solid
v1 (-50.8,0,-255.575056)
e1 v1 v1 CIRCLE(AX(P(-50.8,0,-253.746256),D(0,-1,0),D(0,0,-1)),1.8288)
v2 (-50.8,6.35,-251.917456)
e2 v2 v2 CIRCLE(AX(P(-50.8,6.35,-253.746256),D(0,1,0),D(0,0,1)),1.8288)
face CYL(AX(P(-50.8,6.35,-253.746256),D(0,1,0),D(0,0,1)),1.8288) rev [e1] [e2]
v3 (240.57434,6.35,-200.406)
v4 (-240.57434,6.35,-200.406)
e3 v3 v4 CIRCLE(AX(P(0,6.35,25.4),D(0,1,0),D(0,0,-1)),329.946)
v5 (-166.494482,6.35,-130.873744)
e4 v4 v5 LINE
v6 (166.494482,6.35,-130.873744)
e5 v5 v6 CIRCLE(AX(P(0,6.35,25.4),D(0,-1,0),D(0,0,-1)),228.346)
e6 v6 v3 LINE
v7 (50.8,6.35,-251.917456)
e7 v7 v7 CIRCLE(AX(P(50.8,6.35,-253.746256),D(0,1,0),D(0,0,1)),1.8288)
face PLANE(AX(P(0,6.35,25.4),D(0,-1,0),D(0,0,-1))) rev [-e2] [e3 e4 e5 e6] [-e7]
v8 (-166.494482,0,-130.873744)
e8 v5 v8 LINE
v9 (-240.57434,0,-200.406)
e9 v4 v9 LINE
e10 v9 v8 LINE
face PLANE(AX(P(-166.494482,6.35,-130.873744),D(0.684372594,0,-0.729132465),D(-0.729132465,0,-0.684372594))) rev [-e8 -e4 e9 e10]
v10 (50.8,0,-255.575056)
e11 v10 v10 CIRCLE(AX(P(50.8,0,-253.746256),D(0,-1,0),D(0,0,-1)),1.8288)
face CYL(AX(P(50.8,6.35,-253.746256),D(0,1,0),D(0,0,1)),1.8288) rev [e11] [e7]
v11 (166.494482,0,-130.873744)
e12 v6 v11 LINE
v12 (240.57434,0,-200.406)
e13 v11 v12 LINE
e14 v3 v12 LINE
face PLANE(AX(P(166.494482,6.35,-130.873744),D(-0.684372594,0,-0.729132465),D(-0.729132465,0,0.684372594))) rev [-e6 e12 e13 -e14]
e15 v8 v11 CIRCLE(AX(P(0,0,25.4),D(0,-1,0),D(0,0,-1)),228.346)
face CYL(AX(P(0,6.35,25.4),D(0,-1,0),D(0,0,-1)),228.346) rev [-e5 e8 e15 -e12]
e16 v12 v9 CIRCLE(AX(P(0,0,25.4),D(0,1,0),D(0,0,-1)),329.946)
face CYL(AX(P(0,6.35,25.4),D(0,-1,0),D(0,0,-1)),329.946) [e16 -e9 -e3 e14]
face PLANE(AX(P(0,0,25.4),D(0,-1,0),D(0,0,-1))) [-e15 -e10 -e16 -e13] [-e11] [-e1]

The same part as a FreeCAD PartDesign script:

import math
import FreeCAD as App
import Part
import Sketcher
from FreeCAD import Vector
Q = App.Units.Quantity

doc = App.newDocument("Part")
body = doc.addObject("PartDesign::Body", "Body")

# Sketch on XZ plane
sketch1 = body.newObject("Sketcher::SketchObject", "Sketch")
sketch1.AttachmentSupport = (doc.getObject("XZ_Plane"), [""])
sketch1.MapMode = "FlatFace"
sketch1.addGeometry(Part.LineSegment(Vector(166.494482, -130.873744, 0), Vector(240.57434, -200.406, 0)), False)
sketch1.addGeometry(Part.ArcOfCircle(Part.Circle(Vector(0, 25.4, 0), Vector(0, 0, 1), 329.946), math.radians(-136.813715), math.radians(-43.186285)), False)
sketch1.addGeometry(Part.LineSegment(Vector(-240.57434, -200.406, 0), Vector(-166.494482, -130.873744, 0)), False)
sketch1.addGeometry(Part.ArcOfCircle(Part.Circle(Vector(0, 25.4, 0), Vector(0, 0, 1), 228.346), math.radians(-136.813715), math.radians(-43.186285)), False)
sketch1.addConstraint(Sketcher.Constraint("Coincident", 0, 2, 1, 2))
sketch1.addConstraint(Sketcher.Constraint("Coincident", 1, 1, 2, 1))
sketch1.addConstraint(Sketcher.Constraint("Coincident", 2, 2, 3, 1))
sketch1.addConstraint(Sketcher.Constraint("Coincident", 3, 2, 0, 1))
sketch1.addConstraint(Sketcher.Constraint("Coincident", 3, 3, 1, 3))
sketch1.addConstraint(Sketcher.Constraint("Symmetric", 0, 2, 1, 1, -2))
sketch1.addConstraint(Sketcher.Constraint("Horizontal", 2, 2, 3, 2))
sketch1.addConstraint(Sketcher.Constraint("Radius", 1, Q("12.99 in")))
sketch1.addConstraint(Sketcher.Constraint("Radius", 3, Q("8.99 in")))
sketch1.addConstraint(Sketcher.Constraint("DistanceY", -1, 1, 1, 3, Q("1 in")))
sketch1.addConstraint(Sketcher.Constraint("DistanceY", 0, 2, -1, 1, Q("7.89 in")))
sketch1.addConstraint(Sketcher.Constraint("DistanceX", 2, 2, -1, 1, 166.494482))
pad1 = body.newObject("PartDesign::Pad", "Pad")
pad1.Profile = sketch1
pad1.Length = Q("0.25 in")
pad1.Reversed = True

# Sketch on XZ plane
sketch2 = body.newObject("Sketcher::SketchObject", "Sketch001")
sketch2.AttachmentSupport = (doc.getObject("XZ_Plane"), [""])
sketch2.MapMode = "FlatFace"
sketch2.AttachmentOffset = App.Placement(Vector(0, 0, -0.25 * 25.4), App.Rotation())
sketch2.addGeometry(Part.Circle(Vector(-50.8, -253.746256, 0), Vector(0, 0, 1), 1.8288), False)
sketch2.addGeometry(Part.Circle(Vector(50.8, -253.746256, 0), Vector(0, 0, 1), 1.8288), False)
sketch2.addConstraint(Sketcher.Constraint("Equal", 0, 1))
sketch2.addConstraint(Sketcher.Constraint("Symmetric", 0, 3, 1, 3, -2))
sketch2.addConstraint(Sketcher.Constraint("Diameter", 0, Q("0.144 in")))
sketch2.addConstraint(Sketcher.Constraint("DistanceX", 0, 3, -1, 1, Q("2 in")))
sketch2.addConstraint(Sketcher.Constraint("DistanceY", 0, 3, -1, 1, 253.746256))
doc.recompute()
hole = body.newObject("PartDesign::Hole", "Hole")
hole.Profile = sketch2
hole.ThreadType = "None"
hole.Diameter = Q("0.144 in")
hole.DepthType = "Dimension"
hole.Depth = Q("1 in")
hole.DrillPoint = "Angled"
hole.DrillPointAngle = 118
hole.Reversed = True

doc.recompute()
